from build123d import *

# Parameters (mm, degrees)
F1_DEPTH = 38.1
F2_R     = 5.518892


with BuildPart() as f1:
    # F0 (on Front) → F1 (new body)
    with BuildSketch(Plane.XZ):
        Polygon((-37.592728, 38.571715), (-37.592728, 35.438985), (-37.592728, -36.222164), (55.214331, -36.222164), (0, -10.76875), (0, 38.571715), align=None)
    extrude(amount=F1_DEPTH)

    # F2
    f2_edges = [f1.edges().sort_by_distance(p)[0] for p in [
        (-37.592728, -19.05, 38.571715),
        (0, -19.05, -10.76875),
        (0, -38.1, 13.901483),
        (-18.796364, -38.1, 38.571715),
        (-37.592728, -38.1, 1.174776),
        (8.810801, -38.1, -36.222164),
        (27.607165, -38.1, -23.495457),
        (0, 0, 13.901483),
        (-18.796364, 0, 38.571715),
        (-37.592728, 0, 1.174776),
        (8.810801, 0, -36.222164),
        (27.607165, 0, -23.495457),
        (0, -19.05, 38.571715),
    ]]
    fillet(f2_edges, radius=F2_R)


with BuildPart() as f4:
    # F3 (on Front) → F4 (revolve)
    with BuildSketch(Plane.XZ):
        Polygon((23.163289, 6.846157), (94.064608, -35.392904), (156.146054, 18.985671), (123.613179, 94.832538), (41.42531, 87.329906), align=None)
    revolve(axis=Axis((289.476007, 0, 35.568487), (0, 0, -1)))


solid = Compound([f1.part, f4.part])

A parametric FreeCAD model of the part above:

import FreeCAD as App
import Part
import Sketcher
from FreeCAD import Vector
Q = App.Units.Quantity


def edges_at(feature, points):
    """Names of the edges that pass closest to the given points."""
    edges = feature.Shape.Edges
    near = lambda p: min(range(len(edges)), key=lambda i: edges[i].distToShape(Part.Vertex(*p))[0])
    return sorted({f"Edge{near(p) + 1}" for p in points})


def add_polygon(sketch, points):
    """Adds a closed chain of lines whose ends are joined by coincident constraints."""
    first, n = sketch.GeometryCount, len(points)
    for a, b in zip(points, points[1:] + points[:1]):
        sketch.addGeometry(Part.LineSegment(App.Vector(*a, 0), App.Vector(*b, 0)), False)
    for i in range(n):
        sketch.addConstraint(Sketcher.Constraint("Coincident", first + i, 2, first + (i + 1) % n, 1))

doc = App.newDocument("Part")
body = doc.addObject("PartDesign::Body", "Body")

# Sketch on XZ plane
sketch1 = body.newObject("Sketcher::SketchObject", "Sketch")
sketch1.AttachmentSupport = (doc.getObject("XZ_Plane"), [""])
sketch1.MapMode = "FlatFace"
add_polygon(sketch1, [(-38, 39), (-38, -36), (55, -36), (0, -11), (0, 39)])  # lines 0-4
sketch1.addConstraint([
    Sketcher.Constraint("Vertical", 0),
    Sketcher.Constraint("Horizontal", 1),
    Sketcher.Constraint("Vertical", 3),
    Sketcher.Constraint("Horizontal", 4),
    Sketcher.Constraint("PointOnObject", 2, 2, -2),
    Sketcher.Constraint("DistanceX", 1, 1, 1, 2, 92.807059),
    Sketcher.Constraint("DistanceY", 0, 2, 0, 1, 74.793879),
    Sketcher.Constraint("DistanceX", 4, 2, 4, 1, 37.592728),
    Sketcher.Constraint("DistanceY", 3, 1, 3, 2, 49.340465),
    Sketcher.Constraint("DistanceY", 2, 2, -1, 1, 10.76875),
])
pad1 = body.newObject("PartDesign::Pad", "Pad")
pad1.Profile = sketch1
pad1.Length = Q("1.5 in")
doc.recompute()

fillet = body.newObject("PartDesign::Fillet", "Fillet")
fillet.Base = (pad1, edges_at(pad1, [
    (-37.593, -19.05, 38.572),
    (0, -19.05, -10.769),
    (0, -38.1, 13.901),
    (-18.796, -38.1, 38.572),
    (-37.593, -38.1, 1.175),
    (8.811, -38.1, -36.222),
    (27.607, -38.1, -23.495),
    (0, 0, 13.901),
    (-18.796, 0, 38.572),
    (-37.593, 0, 1.175),
    (8.811, 0, -36.222),
    (27.607, 0, -23.495),
    (0, -19.05, 38.572),
]))
fillet.Radius = 5.518892
body2 = doc.addObject("PartDesign::Body", "Body001")

# Sketch on XZ plane
sketch2 = body2.newObject("Sketcher::SketchObject", "Sketch001")
sketch2.AttachmentSupport = (doc.getObject("XZ_Plane001"), [""])
sketch2.MapMode = "FlatFace"
add_polygon(sketch2, [(23, 7), (94, -35), (156, 19), (124, 95), (41, 87)])  # lines 0-4
sketch2.addGeometry(Part.LineSegment(Vector(289, 95, 0), Vector(289, -35, 0)), True)  # axis
sketch2.addConstraint([
    Sketcher.Constraint("Vertical", 5),
    Sketcher.Constraint("Horizontal", 2, 2, 5, 1),
    Sketcher.Constraint("Horizontal", 0, 2, 5, 2),
    Sketcher.Constraint("Equal", 0, 1),
    Sketcher.Constraint("Equal", 1, 2),
    Sketcher.Constraint("Equal", 2, 3),
    Sketcher.Constraint("Equal", 3, 4),
    Sketcher.Constraint("Distance", 2, 82.529602),
    Sketcher.Constraint("DistanceY", 5, 2, 5, 1, 130.225442),
    Sketcher.Constraint("DistanceX", 3, 2, 0, 2, 52.639298),
    Sketcher.Constraint("DistanceX", 0, 2, 5, 1, 195.411399),
    Sketcher.Constraint("DistanceX", -1, 1, 0, 2, 94.064608),
    Sketcher.Constraint("DistanceY", -1, 1, 1, 2, 18.985671),
    Sketcher.Constraint("DistanceX", -1, 1, 2, 2, 123.613179),
])
revolution = body2.newObject("PartDesign::Revolution", "Revolution")
revolution.Profile = sketch2
revolution.ReferenceAxis = (sketch2, ["Axis0"])
revolution.Angle = 360

doc.recompute()
